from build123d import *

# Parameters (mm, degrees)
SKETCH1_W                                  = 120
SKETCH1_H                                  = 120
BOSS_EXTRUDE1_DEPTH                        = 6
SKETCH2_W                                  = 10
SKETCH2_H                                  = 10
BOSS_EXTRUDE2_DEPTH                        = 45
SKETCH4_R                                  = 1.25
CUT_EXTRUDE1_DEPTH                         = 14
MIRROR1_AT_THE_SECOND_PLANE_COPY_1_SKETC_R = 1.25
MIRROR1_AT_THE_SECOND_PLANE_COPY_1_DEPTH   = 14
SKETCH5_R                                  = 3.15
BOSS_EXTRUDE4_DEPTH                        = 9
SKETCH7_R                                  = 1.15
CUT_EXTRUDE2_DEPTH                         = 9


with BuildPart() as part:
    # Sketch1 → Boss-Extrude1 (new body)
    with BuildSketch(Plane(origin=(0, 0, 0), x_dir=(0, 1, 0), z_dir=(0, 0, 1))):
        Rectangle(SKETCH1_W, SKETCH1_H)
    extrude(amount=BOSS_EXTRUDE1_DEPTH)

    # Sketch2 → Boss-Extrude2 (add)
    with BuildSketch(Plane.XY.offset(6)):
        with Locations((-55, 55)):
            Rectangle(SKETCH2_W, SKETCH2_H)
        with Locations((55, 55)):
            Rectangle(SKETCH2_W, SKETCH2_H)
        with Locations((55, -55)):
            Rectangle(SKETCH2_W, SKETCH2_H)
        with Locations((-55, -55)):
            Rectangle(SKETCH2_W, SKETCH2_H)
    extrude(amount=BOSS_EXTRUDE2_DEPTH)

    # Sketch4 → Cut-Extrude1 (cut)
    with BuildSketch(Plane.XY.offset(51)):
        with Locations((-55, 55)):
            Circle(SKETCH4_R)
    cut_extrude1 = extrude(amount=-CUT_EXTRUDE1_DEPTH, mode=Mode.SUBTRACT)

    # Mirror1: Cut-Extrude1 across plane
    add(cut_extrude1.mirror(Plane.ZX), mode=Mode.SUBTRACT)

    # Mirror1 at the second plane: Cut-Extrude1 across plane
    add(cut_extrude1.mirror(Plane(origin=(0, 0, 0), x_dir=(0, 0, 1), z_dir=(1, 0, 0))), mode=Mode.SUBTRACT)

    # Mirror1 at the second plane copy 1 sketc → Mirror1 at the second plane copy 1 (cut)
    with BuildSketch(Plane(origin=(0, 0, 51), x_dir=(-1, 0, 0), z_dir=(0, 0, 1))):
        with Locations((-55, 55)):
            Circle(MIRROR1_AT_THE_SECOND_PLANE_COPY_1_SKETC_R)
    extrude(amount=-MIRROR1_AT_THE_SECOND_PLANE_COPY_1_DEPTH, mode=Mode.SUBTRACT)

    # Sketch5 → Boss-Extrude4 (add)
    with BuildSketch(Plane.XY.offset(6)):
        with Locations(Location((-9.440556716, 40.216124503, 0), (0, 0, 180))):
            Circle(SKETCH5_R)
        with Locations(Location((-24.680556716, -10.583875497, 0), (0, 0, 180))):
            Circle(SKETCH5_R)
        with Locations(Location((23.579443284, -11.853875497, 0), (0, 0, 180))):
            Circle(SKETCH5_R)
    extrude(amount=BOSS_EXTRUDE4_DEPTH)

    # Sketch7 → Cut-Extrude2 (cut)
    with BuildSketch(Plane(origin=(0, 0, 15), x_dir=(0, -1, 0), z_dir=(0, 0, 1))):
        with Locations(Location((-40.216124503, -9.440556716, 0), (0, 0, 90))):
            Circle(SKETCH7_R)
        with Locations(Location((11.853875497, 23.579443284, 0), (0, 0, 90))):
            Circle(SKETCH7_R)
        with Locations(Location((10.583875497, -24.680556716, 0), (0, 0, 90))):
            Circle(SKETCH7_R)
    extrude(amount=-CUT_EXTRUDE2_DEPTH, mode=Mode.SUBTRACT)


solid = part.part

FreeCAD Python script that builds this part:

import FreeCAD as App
import Part
import Sketcher
from FreeCAD import Vector
Q = App.Units.Quantity

doc = App.newDocument("Part")
body = doc.addObject("PartDesign::Body", "Body")

sketch1 = doc.addObject("Sketcher::SketchObject", "Sketch")
body.addObject(sketch1)
sketch1.AttachmentSupport = (doc.XY_Plane, [""])
sketch1.MapMode = "FlatFace"
sketch1.addGeometry([
    Part.LineSegment(Vector(-60, -60, 0), Vector(60, -60, 0)),
    Part.LineSegment(Vector(60, -60, 0), Vector(60, 60, 0)),
    Part.LineSegment(Vector(60, 60, 0), Vector(-60, 60, 0)),
    Part.LineSegment(Vector(-60, 60, 0), Vector(-60, -60, 0)),
], False)
sketch1.addConstraint([
    Sketcher.Constraint("Coincident", 0, 2, 1, 1),
    Sketcher.Constraint("Coincident", 1, 2, 2, 1),
    Sketcher.Constraint("Coincident", 2, 2, 3, 1),
    Sketcher.Constraint("Coincident", 3, 2, 0, 1),
    Sketcher.Constraint("Horizontal", 0),
    Sketcher.Constraint("Vertical", 1),
    Sketcher.Constraint("Horizontal", 2),
    Sketcher.Constraint("Vertical", 3),
    Sketcher.Constraint("Symmetric", 0, 2, 2, 2, -1, 1),
    Sketcher.Constraint("Equal", 2, 1),
    Sketcher.Constraint("DistanceX", 0, 1, 0, 2, Q("120 mm")),
])
pad1 = doc.addObject("PartDesign::Pad", "Pad")
body.addObject(pad1)
pad1.Profile = sketch1
pad1.Length = 6

sketch2 = doc.addObject("Sketcher::SketchObject", "Sketch001")
body.addObject(sketch2)
sketch2.AttachmentSupport = (doc.XY_Plane, [""])
sketch2.MapMode = "FlatFace"
sketch2.AttachmentOffset = App.Placement(Vector(0, 0, 6), App.Rotation())
sketch2.addGeometry([
    Part.LineSegment(Vector(-60, 60, 0), Vector(-60, 50, 0)),
    Part.LineSegment(Vector(-60, 50, 0), Vector(-50, 50, 0)),
    Part.LineSegment(Vector(-50, 50, 0), Vector(-50, 60, 0)),
    Part.LineSegment(Vector(-50, 60, 0), Vector(-60, 60, 0)),
    Part.LineSegment(Vector(50, 60, 0), Vector(50, 50, 0)),
    Part.LineSegment(Vector(50, 50, 0), Vector(60, 50, 0)),
    Part.LineSegment(Vector(60, 50, 0), Vector(60, 60, 0)),
    Part.LineSegment(Vector(60, 60, 0), Vector(50, 60, 0)),
    Part.LineSegment(Vector(50, -50, 0), Vector(50, -60, 0)),
    Part.LineSegment(Vector(50, -60, 0), Vector(60, -60, 0)),
    Part.LineSegment(Vector(60, -60, 0), Vector(60, -50, 0)),
    Part.LineSegment(Vector(60, -50, 0), Vector(50, -50, 0)),
    Part.LineSegment(Vector(-60, -50, 0), Vector(-60, -60, 0)),
    Part.LineSegment(Vector(-60, -60, 0), Vector(-50, -60, 0)),
    Part.LineSegment(Vector(-50, -60, 0), Vector(-50, -50, 0)),
    Part.LineSegment(Vector(-50, -50, 0), Vector(-60, -50, 0)),
], False)
sketch2.addConstraint([
    Sketcher.Constraint("Coincident", 0, 2, 1, 1),
    Sketcher.Constraint("Coincident", 1, 2, 2, 1),
    Sketcher.Constraint("Coincident", 2, 2, 3, 1),
    Sketcher.Constraint("Coincident", 3, 2, 0, 1),
    Sketcher.Constraint("Coincident", 4, 2, 5, 1),
    Sketcher.Constraint("Coincident", 5, 2, 6, 1),
    Sketcher.Constraint("Coincident", 6, 2, 7, 1),
    Sketcher.Constraint("Coincident", 7, 2, 4, 1),
    Sketcher.Constraint("Coincident", 8, 2, 9, 1),
    Sketcher.Constraint("Coincident", 9, 2, 10, 1),
    Sketcher.Constraint("Coincident", 10, 2, 11, 1),
    Sketcher.Constraint("Coincident", 11, 2, 8, 1),
    Sketcher.Constraint("Coincident", 12, 2, 13, 1),
    Sketcher.Constraint("Coincident", 13, 2, 14, 1),
    Sketcher.Constraint("Coincident", 14, 2, 15, 1),
    Sketcher.Constraint("Coincident", 15, 2, 12, 1),
    Sketcher.Constraint("Vertical", 0),
    Sketcher.Constraint("Horizontal", 1),
    Sketcher.Constraint("Vertical", 2),
    Sketcher.Constraint("Horizontal", 3),
    Sketcher.Constraint("Vertical", 4),
    Sketcher.Constraint("Horizontal", 5),
    Sketcher.Constraint("Vertical", 6),
    Sketcher.Constraint("Horizontal", 7),
    Sketcher.Constraint("Vertical", 8),
    Sketcher.Constraint("Horizontal", 9),
    Sketcher.Constraint("Vertical", 10),
    Sketcher.Constraint("Horizontal", 11),
    Sketcher.Constraint("Vertical", 12),
    Sketcher.Constraint("Horizontal", 13),
    Sketcher.Constraint("Vertical", 14),
    Sketcher.Constraint("Horizontal", 15),
    Sketcher.Constraint("Symmetric", 2, 2, 8, 2, -1, 1),
    Sketcher.Constraint("Symmetric", 0, 2, 10, 2, -1, 1),
    Sketcher.Constraint("Symmetric", 6, 2, 12, 2, -1, 1),
    Sketcher.Constraint("Symmetric", 4, 2, 14, 2, -1, 1),
    Sketcher.Constraint("Symmetric", 1, 2, 4, 2, -2),
    Sketcher.Constraint("Symmetric", 3, 2, 6, 2, -2),
    Sketcher.Constraint("Equal", 15, 0),
    Sketcher.Constraint("DistanceX", 1, 1, 1, 2, Q("10 mm")),
    Sketcher.Constraint("DistanceX", 0, 2, -1, 1, Q("60 mm")),
    Sketcher.Constraint("DistanceY", -1, 1, 0, 2, Q("50 mm")),
])
pad2 = doc.addObject("PartDesign::Pad", "Pad001")
body.addObject(pad2)
pad2.Profile = sketch2
pad2.Length = 45

sketch3 = doc.addObject("Sketcher::SketchObject", "Sketch002")
body.addObject(sketch3)
sketch3.AttachmentSupport = (doc.XY_Plane, [""])
sketch3.MapMode = "FlatFace"
sketch3.AttachmentOffset = App.Placement(Vector(0, 0, 51), App.Rotation())
sketch3.addGeometry(Part.Circle(Vector(-55, 55, 0), Vector(0, 0, 1), 1.2), False)
sketch3.addConstraint([
    Sketcher.Constraint("Diameter", 0, Q("2.5 mm")),
    Sketcher.Constraint("DistanceX", 0, 3, -1, 1, Q("55 mm")),
    Sketcher.Constraint("DistanceY", -1, 1, 0, 3, Q("55 mm")),
])
pocket1 = doc.addObject("PartDesign::Pocket", "Pocket")
body.addObject(pocket1)
pocket1.Profile = sketch3
pocket1.Length = 14
doc.recompute()

mirrored = doc.addObject("PartDesign::Mirrored", "Mirrored")
body.addObject(mirrored)
mirrored.Originals = [pocket1]
mirrored.MirrorPlane = (doc.XZ_Plane, [""])
body.Tip = mirrored
doc.recompute()

mirrored2 = doc.addObject("PartDesign::Mirrored", "Mirrored001")
body.addObject(mirrored2)
mirrored2.Originals = [pocket1]
mirrored2.MirrorPlane = (doc.YZ_Plane, [""])
body.Tip = mirrored2

sketch4 = doc.addObject("Sketcher::SketchObject", "Sketch003")
body.addObject(sketch4)
sketch4.AttachmentSupport = (doc.XY_Plane, [""])
sketch4.MapMode = "FlatFace"
sketch4.AttachmentOffset = App.Placement(Vector(0, 0, 51), App.Rotation())
sketch4.addGeometry(Part.Circle(Vector(55, -55, 0), Vector(0, 0, 1), 1.2), False)
sketch4.addConstraint([
    Sketcher.Constraint("Diameter", 0, Q("2.5 mm")),
    Sketcher.Constraint("DistanceX", -1, 1, 0, 3, Q("55 mm")),
    Sketcher.Constraint("DistanceY", 0, 3, -1, 1, Q("55 mm")),
])
pocket2 = doc.addObject("PartDesign::Pocket", "Pocket001")
body.addObject(pocket2)
pocket2.Profile = sketch4
pocket2.Length = 14

sketch5 = doc.addObject("Sketcher::SketchObject", "Sketch004")
body.addObject(sketch5)
sketch5.AttachmentSupport = (doc.XY_Plane, [""])
sketch5.MapMode = "FlatFace"
sketch5.AttachmentOffset = App.Placement(Vector(0, 0, 6), App.Rotation())
sketch5.addGeometry([
    Part.Circle(Vector(-9.4, 40.2, 0), Vector(0, 0, 1), 3.1),
    Part.Circle(Vector(-24.7, -10.6, 0), Vector(0, 0, 1), 3.1),
    Part.Circle(Vector(23.6, -11.9, 0), Vector(0, 0, 1), 3.1),
], False)
sketch5.addConstraint([
    Sketcher.Constraint("Equal", 0, 1),
    Sketcher.Constraint("Equal", 1, 2),
    Sketcher.Constraint("Diameter", 0, Q("6.3 mm")),
    Sketcher.Constraint("DistanceY", 1, 3, 0, 3, Q("50.8 mm")),
    Sketcher.Constraint("DistanceX", 1, 3, 0, 3, Q("15.24 mm")),
    Sketcher.Constraint("DistanceX", 1, 3, 2, 3, Q("48.26 mm")),
    Sketcher.Constraint("DistanceY", 2, 3, 1, 3, Q("1.27 mm")),
    Sketcher.Constraint("DistanceX", 0, 3, -1, 1, Q("9.440557 mm")),
    Sketcher.Constraint("DistanceY", -1, 1, 0, 3, Q("40.216125 mm")),
])
pad3 = doc.addObject("PartDesign::Pad", "Pad002")
body.addObject(pad3)
pad3.Profile = sketch5
pad3.Length = 9

sketch6 = doc.addObject("Sketcher::SketchObject", "Sketch005")
body.addObject(sketch6)
sketch6.AttachmentSupport = (doc.XY_Plane, [""])
sketch6.MapMode = "FlatFace"
sketch6.AttachmentOffset = App.Placement(Vector(0, 0, 15), App.Rotation())
sketch6.addGeometry([
    Part.Circle(Vector(-9.4, 40.2, 0), Vector(0, 0, 1), 1.1),
    Part.Circle(Vector(23.6, -11.9, 0), Vector(0, 0, 1), 1.1),
    Part.Circle(Vector(-24.7, -10.6, 0), Vector(0, 0, 1), 1.1),
], False)
sketch6.addConstraint([
    Sketcher.Constraint("Equal", 0, 1),
    Sketcher.Constraint("Equal", 1, 2),
    Sketcher.Constraint("Diameter", 0, Q("2.3 mm")),
    Sketcher.Constraint("DistanceY", 2, 3, 0, 3, Q("50.8 mm")),
    Sketcher.Constraint("DistanceX", 0, 3, 1, 3, Q("33.02 mm")),
    Sketcher.Constraint("DistanceY", 1, 3, 0, 3, Q("52.07 mm")),
    Sketcher.Constraint("DistanceX", 2, 3, 1, 3, Q("48.26 mm")),
    Sketcher.Constraint("DistanceX", 0, 3, -1, 1, Q("9.440557 mm")),
    Sketcher.Constraint("DistanceY", -1, 1, 0, 3, Q("40.216125 mm")),
])
pocket3 = doc.addObject("PartDesign::Pocket", "Pocket002")
body.addObject(pocket3)
pocket3.Profile = sketch6
pocket3.Length = 9

doc.recompute()
